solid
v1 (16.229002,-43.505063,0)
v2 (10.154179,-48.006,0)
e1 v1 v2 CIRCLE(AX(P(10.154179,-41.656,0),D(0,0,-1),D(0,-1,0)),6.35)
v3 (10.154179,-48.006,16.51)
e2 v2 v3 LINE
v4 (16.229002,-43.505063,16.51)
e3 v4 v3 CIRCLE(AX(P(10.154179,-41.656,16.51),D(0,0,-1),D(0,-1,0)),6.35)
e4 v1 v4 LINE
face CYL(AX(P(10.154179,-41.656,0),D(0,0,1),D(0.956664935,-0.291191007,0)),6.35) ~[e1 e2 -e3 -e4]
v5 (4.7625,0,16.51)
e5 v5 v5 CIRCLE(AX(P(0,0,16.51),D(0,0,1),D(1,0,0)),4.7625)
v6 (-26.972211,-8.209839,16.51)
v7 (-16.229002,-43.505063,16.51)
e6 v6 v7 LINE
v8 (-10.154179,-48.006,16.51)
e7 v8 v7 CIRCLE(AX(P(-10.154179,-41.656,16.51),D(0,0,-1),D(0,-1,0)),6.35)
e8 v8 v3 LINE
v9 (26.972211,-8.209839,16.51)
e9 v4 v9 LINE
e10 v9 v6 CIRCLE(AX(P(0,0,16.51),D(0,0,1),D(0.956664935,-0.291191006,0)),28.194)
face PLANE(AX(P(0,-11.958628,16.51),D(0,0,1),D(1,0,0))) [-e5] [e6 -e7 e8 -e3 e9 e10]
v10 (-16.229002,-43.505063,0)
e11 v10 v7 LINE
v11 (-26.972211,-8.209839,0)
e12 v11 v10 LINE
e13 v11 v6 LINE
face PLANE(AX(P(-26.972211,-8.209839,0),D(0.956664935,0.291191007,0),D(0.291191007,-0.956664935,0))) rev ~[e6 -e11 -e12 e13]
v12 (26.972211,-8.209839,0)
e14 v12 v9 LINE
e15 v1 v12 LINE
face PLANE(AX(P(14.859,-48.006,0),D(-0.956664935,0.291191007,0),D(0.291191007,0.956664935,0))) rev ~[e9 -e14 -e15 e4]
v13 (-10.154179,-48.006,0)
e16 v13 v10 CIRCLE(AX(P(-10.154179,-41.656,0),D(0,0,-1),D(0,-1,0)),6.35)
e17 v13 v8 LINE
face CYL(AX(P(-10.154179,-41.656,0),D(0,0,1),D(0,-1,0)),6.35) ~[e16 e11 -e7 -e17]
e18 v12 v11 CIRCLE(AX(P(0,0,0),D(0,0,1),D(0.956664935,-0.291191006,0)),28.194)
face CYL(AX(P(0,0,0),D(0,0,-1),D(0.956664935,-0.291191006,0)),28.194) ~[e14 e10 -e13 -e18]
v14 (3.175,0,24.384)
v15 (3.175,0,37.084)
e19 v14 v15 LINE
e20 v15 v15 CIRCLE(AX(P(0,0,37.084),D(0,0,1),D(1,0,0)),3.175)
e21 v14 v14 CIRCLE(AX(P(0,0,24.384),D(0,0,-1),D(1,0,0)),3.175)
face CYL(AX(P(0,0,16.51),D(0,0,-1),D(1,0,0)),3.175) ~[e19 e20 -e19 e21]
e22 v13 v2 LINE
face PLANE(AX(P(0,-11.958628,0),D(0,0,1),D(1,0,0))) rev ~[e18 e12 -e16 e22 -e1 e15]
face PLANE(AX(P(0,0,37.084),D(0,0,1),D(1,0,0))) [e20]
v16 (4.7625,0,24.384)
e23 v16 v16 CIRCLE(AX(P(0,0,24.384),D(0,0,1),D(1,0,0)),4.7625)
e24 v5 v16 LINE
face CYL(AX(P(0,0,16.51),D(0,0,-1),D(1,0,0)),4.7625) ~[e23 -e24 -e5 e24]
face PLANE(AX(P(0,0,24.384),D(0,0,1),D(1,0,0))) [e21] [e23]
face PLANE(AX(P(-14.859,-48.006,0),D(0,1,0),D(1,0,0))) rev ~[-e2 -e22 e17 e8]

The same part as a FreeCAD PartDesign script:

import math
import FreeCAD as App
import Part
import Sketcher
from FreeCAD import Vector
Q = App.Units.Quantity


def edges_at(feature, points):
    """Names of the edges that pass closest to the given points."""
    edges = feature.Shape.Edges
    near = lambda p: min(range(len(edges)), key=lambda i: edges[i].distToShape(Part.Vertex(*p))[0])
    return sorted({f"Edge{near(p) + 1}" for p in points})

doc = App.newDocument("Part")
body = doc.addObject("PartDesign::Body", "Body")

sketch1 = body.newObject("Sketcher::SketchObject", "Sketch")
sketch1.AttachmentSupport = (doc.getObject("XY_Plane"), [""])
sketch1.MapMode = "FlatFace"
sketch1.addGeometry([
    Part.LineSegment(Vector(14.859, -48.006, 0), Vector(26.972211, -8.209839, 0)),
    Part.ArcOfCircle(Part.Circle(Vector(0, 0, 0), Vector(0, 0, 1), 28.194), math.radians(-16.929273), math.radians(196.929273)),
    Part.LineSegment(Vector(-26.972211, -8.209839, 0), Vector(-14.859, -48.006, 0)),
    Part.LineSegment(Vector(-14.859, -48.006, 0), Vector(14.859, -48.006, 0)),
], False)
sketch1.addConstraint([
    Sketcher.Constraint("Tangent", 0, 2, 1, 1),
    Sketcher.Constraint("Tangent", 1, 2, 2, 1),
    Sketcher.Constraint("Coincident", 2, 2, 3, 1),
    Sketcher.Constraint("Coincident", 3, 2, 0, 1),
    Sketcher.Constraint("Horizontal", 3),
    Sketcher.Constraint("Coincident", 1, 3, -1, 1),
    Sketcher.Constraint("Horizontal", 0, 2, 1, 2),
    Sketcher.Constraint("Radius", 1, Q("1.11 in")),
    Sketcher.Constraint("DistanceX", 3, 1, 3, 2, Q("1.17 in")),
    Sketcher.Constraint("DistanceY", 2, 2, -1, 1, Q("1.89 in")),
])
pad1 = body.newObject("PartDesign::Pad", "Pad")
pad1.Profile = sketch1
pad1.Length = Q("0.65 in")

sketch2 = body.newObject("Sketcher::SketchObject", "Sketch001")
sketch2.AttachmentSupport = (doc.getObject("XY_Plane"), [""])
sketch2.MapMode = "FlatFace"
sketch2.AttachmentOffset = App.Placement(Vector(0, 0, 0.65 * 25.4), App.Rotation())
sketch2.addGeometry(Part.Circle(Vector(0, 0, 0), Vector(0, 0, 1), 3.175), False)
sketch2.addConstraint([
    Sketcher.Constraint("Coincident", 0, 3, -1, 1),
    Sketcher.Constraint("Diameter", 0, Q("0.25 in")),
])
pad2 = body.newObject("PartDesign::Pad", "Pad001")
pad2.Profile = sketch2
pad2.Length = Q("0.81 in")

sketch3 = body.newObject("Sketcher::SketchObject", "Sketch002")
sketch3.AttachmentSupport = (doc.getObject("XY_Plane"), [""])
sketch3.MapMode = "FlatFace"
sketch3.AttachmentOffset = App.Placement(Vector(0, 0, 0.65 * 25.4), App.Rotation())
sketch3.addGeometry(Part.Circle(Vector(0, 0, 0), Vector(0, 0, 1), 4.7625), False)
sketch3.addConstraint([
    Sketcher.Constraint("Coincident", 0, 3, -1, 1),
    Sketcher.Constraint("Diameter", 0, Q("0.375 in")),
])
pad3 = body.newObject("PartDesign::Pad", "Pad002")
pad3.Profile = sketch3
pad3.Length = Q("0.31 in")
doc.recompute()

fillet = body.newObject("PartDesign::Fillet", "Fillet")
fillet.Base = (pad3, edges_at(pad3, [(-14.859, -48.006, 8.255), (14.859, -48.006, 8.255)]))
fillet.Radius = Q("0.25 in")

doc.recompute()
